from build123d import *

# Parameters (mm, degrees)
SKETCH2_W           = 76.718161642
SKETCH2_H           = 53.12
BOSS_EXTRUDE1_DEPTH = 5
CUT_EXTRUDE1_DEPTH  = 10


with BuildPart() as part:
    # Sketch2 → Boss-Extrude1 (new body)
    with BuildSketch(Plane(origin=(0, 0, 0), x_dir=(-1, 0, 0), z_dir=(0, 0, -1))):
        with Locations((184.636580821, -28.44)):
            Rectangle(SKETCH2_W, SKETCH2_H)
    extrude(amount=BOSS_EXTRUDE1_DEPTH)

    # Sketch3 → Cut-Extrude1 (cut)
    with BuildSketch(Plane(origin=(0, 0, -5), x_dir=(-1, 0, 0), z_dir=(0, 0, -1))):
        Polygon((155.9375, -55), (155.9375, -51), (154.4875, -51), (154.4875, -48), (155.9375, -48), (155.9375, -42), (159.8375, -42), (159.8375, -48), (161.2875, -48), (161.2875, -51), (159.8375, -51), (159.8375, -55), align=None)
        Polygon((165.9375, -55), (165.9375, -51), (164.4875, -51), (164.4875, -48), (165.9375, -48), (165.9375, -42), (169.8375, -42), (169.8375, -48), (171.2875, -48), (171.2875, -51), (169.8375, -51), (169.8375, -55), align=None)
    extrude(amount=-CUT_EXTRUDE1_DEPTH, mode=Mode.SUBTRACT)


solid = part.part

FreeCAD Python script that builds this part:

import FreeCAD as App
import Part
import Sketcher

doc = App.newDocument("Part")
body = doc.addObject("PartDesign::Body", "Body")

# Sketch on XY plane
sketch1 = body.newObject("Sketcher::SketchObject", "Sketch")
sketch1.AttachmentSupport = (doc.getObject("XY_Plane"), [""])
sketch1.MapMode = "FlatFace"
sketch1.addGeometry(Part.LineSegment(App.Vector(-146, -2, 0), App.Vector(-146, -55, 0)), False)
sketch1.addGeometry(Part.LineSegment(App.Vector(-146, -55, 0), App.Vector(-223, -55, 0)), False)
sketch1.addGeometry(Part.LineSegment(App.Vector(-223, -55, 0), App.Vector(-223, -2, 0)), False)
sketch1.addGeometry(Part.LineSegment(App.Vector(-223, -2, 0), App.Vector(-146, -2, 0)), False)
sketch1.addConstraint(Sketcher.Constraint("Coincident", 0, 2, 1, 1))
sketch1.addConstraint(Sketcher.Constraint("Coincident", 1, 2, 2, 1))
sketch1.addConstraint(Sketcher.Constraint("Coincident", 2, 2, 3, 1))
sketch1.addConstraint(Sketcher.Constraint("Coincident", 3, 2, 0, 1))
sketch1.addConstraint(Sketcher.Constraint("Vertical", 0))
sketch1.addConstraint(Sketcher.Constraint("Horizontal", 1))
sketch1.addConstraint(Sketcher.Constraint("Vertical", 2))
sketch1.addConstraint(Sketcher.Constraint("Horizontal", 3))
sketch1.addConstraint(Sketcher.Constraint("DistanceY", 0, 2, -1, 1, 55.0))
sketch1.addConstraint(Sketcher.Constraint("DistanceY", 0, 2, 0, 1, 53.12))
sketch1.addConstraint(Sketcher.Constraint("DistanceX", 1, 2, 1, 1, 76.718162))
sketch1.addConstraint(Sketcher.Constraint("DistanceX", 0, 2, -1, 1, 146.2775))
pad1 = body.newObject("PartDesign::Pad", "Pad")
pad1.Profile = sketch1
pad1.Length = 5
pad1.Reversed = True

# Sketch on XY plane
sketch2 = body.newObject("Sketcher::SketchObject", "Sketch001")
sketch2.AttachmentSupport = (doc.getObject("XY_Plane"), [""])
sketch2.MapMode = "FlatFace"
sketch2.AttachmentOffset = App.Placement(App.Vector(0, 0, -5), App.Rotation())
sketch2.addGeometry(Part.LineSegment(App.Vector(-155.9, -51, 0), App.Vector(-155.9, -55, 0)), False)
sketch2.addGeometry(Part.LineSegment(App.Vector(-155.9, -55, 0), App.Vector(-159.8, -55, 0)), False)
sketch2.addGeometry(Part.LineSegment(App.Vector(-159.8, -55, 0), App.Vector(-159.8, -51, 0)), False)
sketch2.addGeometry(Part.LineSegment(App.Vector(-159.8, -51, 0), App.Vector(-161.3, -51, 0)), False)
sketch2.addGeometry(Part.LineSegment(App.Vector(-161.3, -51, 0), App.Vector(-161.3, -48, 0)), False)
sketch2.addGeometry(Part.LineSegment(App.Vector(-161.3, -48, 0), App.Vector(-159.8, -48, 0)), False)
sketch2.addGeometry(Part.LineSegment(App.Vector(-159.8, -48, 0), App.Vector(-159.8, -42, 0)), False)
sketch2.addGeometry(Part.LineSegment(App.Vector(-159.8, -42, 0), App.Vector(-155.9, -42, 0)), False)
sketch2.addGeometry(Part.LineSegment(App.Vector(-155.9, -42, 0), App.Vector(-155.9, -48, 0)), False)
sketch2.addGeometry(Part.LineSegment(App.Vector(-155.9, -48, 0), App.Vector(-154.5, -48, 0)), False)
sketch2.addGeometry(Part.LineSegment(App.Vector(-154.5, -48, 0), App.Vector(-154.5, -51, 0)), False)
sketch2.addGeometry(Part.LineSegment(App.Vector(-154.5, -51, 0), App.Vector(-155.9, -51, 0)), False)
sketch2.addGeometry(Part.LineSegment(App.Vector(-165.9, -51, 0), App.Vector(-165.9, -55, 0)), False)
sketch2.addGeometry(Part.LineSegment(App.Vector(-165.9, -55, 0), App.Vector(-169.8, -55, 0)), False)
sketch2.addGeometry(Part.LineSegment(App.Vector(-169.8, -55, 0), App.Vector(-169.8, -51, 0)), False)
sketch2.addGeometry(Part.LineSegment(App.Vector(-169.8, -51, 0), App.Vector(-171.3, -51, 0)), False)
sketch2.addGeometry(Part.LineSegment(App.Vector(-171.3, -51, 0), App.Vector(-171.3, -48, 0)), False)
sketch2.addGeometry(Part.LineSegment(App.Vector(-171.3, -48, 0), App.Vector(-169.8, -48, 0)), False)
sketch2.addGeometry(Part.LineSegment(App.Vector(-169.8, -48, 0), App.Vector(-169.8, -42, 0)), False)
sketch2.addGeometry(Part.LineSegment(App.Vector(-169.8, -42, 0), App.Vector(-165.9, -42, 0)), False)
sketch2.addGeometry(Part.LineSegment(App.Vector(-165.9, -42, 0), App.Vector(-165.9, -48, 0)), False)
sketch2.addGeometry(Part.LineSegment(App.Vector(-165.9, -48, 0), App.Vector(-164.5, -48, 0)), False)
sketch2.addGeometry(Part.LineSegment(App.Vector(-164.5, -48, 0), App.Vector(-164.5, -51, 0)), False)
sketch2.addGeometry(Part.LineSegment(App.Vector(-164.5, -51, 0), App.Vector(-165.9, -51, 0)), False)
sketch2.addConstraint(Sketcher.Constraint("Coincident", 0, 2, 1, 1))
sketch2.addConstraint(Sketcher.Constraint("Coincident", 1, 2, 2, 1))
sketch2.addConstraint(Sketcher.Constraint("Coincident", 2, 2, 3, 1))
sketch2.addConstraint(Sketcher.Constraint("Coincident", 3, 2, 4, 1))
sketch2.addConstraint(Sketcher.Constraint("Coincident", 4, 2, 5, 1))
sketch2.addConstraint(Sketcher.Constraint("Coincident", 5, 2, 6, 1))
sketch2.addConstraint(Sketcher.Constraint("Coincident", 6, 2, 7, 1))
sketch2.addConstraint(Sketcher.Constraint("Coincident", 7, 2, 8, 1))
sketch2.addConstraint(Sketcher.Constraint("Coincident", 8, 2, 9, 1))
sketch2.addConstraint(Sketcher.Constraint("Coincident", 9, 2, 10, 1))
sketch2.addConstraint(Sketcher.Constraint("Coincident", 10, 2, 11, 1))
sketch2.addConstraint(Sketcher.Constraint("Coincident", 11, 2, 0, 1))
sketch2.addConstraint(Sketcher.Constraint("Coincident", 12, 2, 13, 1))
sketch2.addConstraint(Sketcher.Constraint("Coincident", 13, 2, 14, 1))
sketch2.addConstraint(Sketcher.Constraint("Coincident", 14, 2, 15, 1))
sketch2.addConstraint(Sketcher.Constraint("Coincident", 15, 2, 16, 1))
sketch2.addConstraint(Sketcher.Constraint("Coincident", 16, 2, 17, 1))
sketch2.addConstraint(Sketcher.Constraint("Coincident", 17, 2, 18, 1))
sketch2.addConstraint(Sketcher.Constraint("Coincident", 18, 2, 19, 1))
sketch2.addConstraint(Sketcher.Constraint("Coincident", 19, 2, 20, 1))
sketch2.addConstraint(Sketcher.Constraint("Coincident", 20, 2, 21, 1))
sketch2.addConstraint(Sketcher.Constraint("Coincident", 21, 2, 22, 1))
sketch2.addConstraint(Sketcher.Constraint("Coincident", 22, 2, 23, 1))
sketch2.addConstraint(Sketcher.Constraint("Coincident", 23, 2, 12, 1))
sketch2.addConstraint(Sketcher.Constraint("Vertical", 0))
sketch2.addConstraint(Sketcher.Constraint("Horizontal", 1))
sketch2.addConstraint(Sketcher.Constraint("Vertical", 2))
sketch2.addConstraint(Sketcher.Constraint("Horizontal", 3))
sketch2.addConstraint(Sketcher.Constraint("Vertical", 4))
sketch2.addConstraint(Sketcher.Constraint("Horizontal", 5))
sketch2.addConstraint(Sketcher.Constraint("Vertical", 6))
sketch2.addConstraint(Sketcher.Constraint("Horizontal", 7))
sketch2.addConstraint(Sketcher.Constraint("Vertical", 8))
sketch2.addConstraint(Sketcher.Constraint("Horizontal", 9))
sketch2.addConstraint(Sketcher.Constraint("Vertical", 10))
sketch2.addConstraint(Sketcher.Constraint("Horizontal", 11))
sketch2.addConstraint(Sketcher.Constraint("Vertical", 12))
sketch2.addConstraint(Sketcher.Constraint("Horizontal", 13))
sketch2.addConstraint(Sketcher.Constraint("Vertical", 14))
sketch2.addConstraint(Sketcher.Constraint("Horizontal", 15))
sketch2.addConstraint(Sketcher.Constraint("Vertical", 16))
sketch2.addConstraint(Sketcher.Constraint("Horizontal", 17))
sketch2.addConstraint(Sketcher.Constraint("Vertical", 18))
sketch2.addConstraint(Sketcher.Constraint("Horizontal", 19))
sketch2.addConstraint(Sketcher.Constraint("Vertical", 20))
sketch2.addConstraint(Sketcher.Constraint("Horizontal", 21))
sketch2.addConstraint(Sketcher.Constraint("Vertical", 22))
sketch2.addConstraint(Sketcher.Constraint("Horizontal", 23))
sketch2.addConstraint(Sketcher.Constraint("Horizontal", 5, 2, 8, 2))
sketch2.addConstraint(Sketcher.Constraint("Horizontal", 3, 2, 10, 2))
sketch2.addConstraint(Sketcher.Constraint("Horizontal", 1, 2, 12, 2))
sketch2.addConstraint(Sketcher.Constraint("Horizontal", 11, 2, 14, 2))
sketch2.addConstraint(Sketcher.Constraint("Horizontal", 9, 2, 16, 2))
sketch2.addConstraint(Sketcher.Constraint("Horizontal", 7, 2, 18, 2))
sketch2.addConstraint(Sketcher.Constraint("Horizontal", 17, 2, 20, 2))
sketch2.addConstraint(Sketcher.Constraint("Horizontal", 15, 2, 22, 2))
sketch2.addConstraint(Sketcher.Constraint("Vertical", 2, 2, 5, 2))
sketch2.addConstraint(Sketcher.Constraint("Vertical", 0, 2, 7, 2))
sketch2.addConstraint(Sketcher.Constraint("Vertical", 14, 2, 17, 2))
sketch2.addConstraint(Sketcher.Constraint("Vertical", 12, 2, 19, 2))
sketch2.addConstraint(Sketcher.Constraint("Equal", 5, 9))
sketch2.addConstraint(Sketcher.Constraint("Equal", 7, 13))
sketch2.addConstraint(Sketcher.Constraint("Equal", 11, 15))
sketch2.addConstraint(Sketcher.Constraint("Equal", 17, 21))
sketch2.addConstraint(Sketcher.Constraint("DistanceY", 0, 2, 0, 1, 4.0))
sketch2.addConstraint(Sketcher.Constraint("DistanceY", 4, 1, 4, 2, 3.0))
sketch2.addConstraint(Sketcher.Constraint("DistanceY", 6, 1, 6, 2, 6.0))
sketch2.addConstraint(Sketcher.Constraint("DistanceX", 1, 2, 1, 1, 3.9))
sketch2.addConstraint(Sketcher.Constraint("DistanceY", 0, 2, -1, 1, 55.0))
sketch2.addConstraint(Sketcher.Constraint("DistanceX", 13, 2, 1, 2, 10.0))
sketch2.addConstraint(Sketcher.Constraint("DistanceX", 3, 2, 3, 1, 1.45))
sketch2.addConstraint(Sketcher.Constraint("DistanceX", 0, 2, -1, 1, 155.9375))
pocket1 = body.newObject("PartDesign::Pocket", "Pocket")
pocket1.Profile = sketch2
pocket1.Length = 10
pocket1.Reversed = True

doc.recompute()
